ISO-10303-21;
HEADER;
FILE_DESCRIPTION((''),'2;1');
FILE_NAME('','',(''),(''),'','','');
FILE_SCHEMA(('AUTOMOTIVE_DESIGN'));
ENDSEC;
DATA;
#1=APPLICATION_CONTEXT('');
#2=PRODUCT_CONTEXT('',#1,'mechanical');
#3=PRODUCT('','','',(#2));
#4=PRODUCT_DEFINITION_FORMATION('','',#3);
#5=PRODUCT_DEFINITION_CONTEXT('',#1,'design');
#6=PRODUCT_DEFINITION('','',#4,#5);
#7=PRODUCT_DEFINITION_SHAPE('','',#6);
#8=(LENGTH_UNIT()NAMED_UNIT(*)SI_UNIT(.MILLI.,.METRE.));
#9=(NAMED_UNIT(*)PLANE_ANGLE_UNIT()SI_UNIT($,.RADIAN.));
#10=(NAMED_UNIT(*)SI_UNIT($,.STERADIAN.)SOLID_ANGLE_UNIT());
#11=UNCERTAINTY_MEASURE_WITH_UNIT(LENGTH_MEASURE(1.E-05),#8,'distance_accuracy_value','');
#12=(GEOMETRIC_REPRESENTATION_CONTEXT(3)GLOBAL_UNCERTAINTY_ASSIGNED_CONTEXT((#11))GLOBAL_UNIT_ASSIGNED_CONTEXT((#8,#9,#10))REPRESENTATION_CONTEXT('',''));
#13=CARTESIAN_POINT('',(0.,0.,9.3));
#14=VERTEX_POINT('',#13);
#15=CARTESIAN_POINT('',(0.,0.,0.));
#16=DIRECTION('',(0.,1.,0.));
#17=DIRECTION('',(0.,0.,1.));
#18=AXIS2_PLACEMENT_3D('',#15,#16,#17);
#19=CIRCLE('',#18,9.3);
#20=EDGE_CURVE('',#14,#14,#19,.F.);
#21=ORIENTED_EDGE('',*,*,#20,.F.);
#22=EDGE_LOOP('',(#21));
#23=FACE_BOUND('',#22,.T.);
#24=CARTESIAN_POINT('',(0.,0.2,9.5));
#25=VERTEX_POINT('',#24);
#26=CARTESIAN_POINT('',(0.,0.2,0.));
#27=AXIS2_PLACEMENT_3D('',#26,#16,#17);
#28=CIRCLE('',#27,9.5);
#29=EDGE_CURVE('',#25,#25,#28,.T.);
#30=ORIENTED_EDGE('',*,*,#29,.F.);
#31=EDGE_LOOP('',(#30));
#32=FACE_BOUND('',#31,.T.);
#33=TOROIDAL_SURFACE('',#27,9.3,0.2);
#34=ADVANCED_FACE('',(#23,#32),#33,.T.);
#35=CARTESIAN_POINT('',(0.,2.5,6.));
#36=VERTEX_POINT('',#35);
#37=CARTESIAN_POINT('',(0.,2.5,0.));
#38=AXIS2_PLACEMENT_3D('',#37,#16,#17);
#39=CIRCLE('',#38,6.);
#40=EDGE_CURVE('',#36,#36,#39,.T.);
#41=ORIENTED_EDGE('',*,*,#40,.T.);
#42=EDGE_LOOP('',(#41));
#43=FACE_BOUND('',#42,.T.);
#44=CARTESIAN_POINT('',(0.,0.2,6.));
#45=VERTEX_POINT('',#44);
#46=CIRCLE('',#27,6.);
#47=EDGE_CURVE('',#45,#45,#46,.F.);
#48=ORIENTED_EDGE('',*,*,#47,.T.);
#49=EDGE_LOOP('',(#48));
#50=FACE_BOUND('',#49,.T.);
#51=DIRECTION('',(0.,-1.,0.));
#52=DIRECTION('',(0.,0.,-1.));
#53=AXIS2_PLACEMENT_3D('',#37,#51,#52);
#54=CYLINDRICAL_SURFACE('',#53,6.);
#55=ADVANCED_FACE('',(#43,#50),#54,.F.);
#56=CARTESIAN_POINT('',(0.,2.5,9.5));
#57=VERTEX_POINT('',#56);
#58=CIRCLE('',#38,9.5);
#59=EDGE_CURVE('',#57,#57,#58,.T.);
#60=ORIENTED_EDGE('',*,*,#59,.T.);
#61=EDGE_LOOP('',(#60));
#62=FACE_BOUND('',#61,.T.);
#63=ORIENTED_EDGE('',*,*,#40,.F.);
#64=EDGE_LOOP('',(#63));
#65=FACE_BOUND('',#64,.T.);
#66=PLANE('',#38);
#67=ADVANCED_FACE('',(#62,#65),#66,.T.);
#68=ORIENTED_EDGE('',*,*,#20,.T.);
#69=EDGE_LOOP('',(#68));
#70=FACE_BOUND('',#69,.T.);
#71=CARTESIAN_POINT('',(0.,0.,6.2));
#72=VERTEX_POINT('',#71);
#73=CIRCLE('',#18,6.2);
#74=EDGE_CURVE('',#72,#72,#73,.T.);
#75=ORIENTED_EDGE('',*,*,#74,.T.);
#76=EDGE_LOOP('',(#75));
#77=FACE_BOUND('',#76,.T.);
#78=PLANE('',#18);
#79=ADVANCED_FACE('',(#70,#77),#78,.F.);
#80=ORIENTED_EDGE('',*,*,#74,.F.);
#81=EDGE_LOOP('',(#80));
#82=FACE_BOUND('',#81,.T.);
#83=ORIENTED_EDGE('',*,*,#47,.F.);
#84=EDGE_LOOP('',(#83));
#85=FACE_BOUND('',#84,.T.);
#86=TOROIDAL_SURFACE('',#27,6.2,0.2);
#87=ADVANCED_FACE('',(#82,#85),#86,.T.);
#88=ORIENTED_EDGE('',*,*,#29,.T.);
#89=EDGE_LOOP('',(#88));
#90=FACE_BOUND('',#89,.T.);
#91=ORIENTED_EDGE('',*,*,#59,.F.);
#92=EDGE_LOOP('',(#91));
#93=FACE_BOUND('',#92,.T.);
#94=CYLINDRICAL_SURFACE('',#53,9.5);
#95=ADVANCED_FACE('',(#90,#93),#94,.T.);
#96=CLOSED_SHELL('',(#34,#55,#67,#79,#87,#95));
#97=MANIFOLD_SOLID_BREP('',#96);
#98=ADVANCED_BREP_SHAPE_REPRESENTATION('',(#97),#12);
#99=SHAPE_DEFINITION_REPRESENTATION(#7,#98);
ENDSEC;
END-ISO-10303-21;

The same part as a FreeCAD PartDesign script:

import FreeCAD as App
import Part
import Sketcher
from FreeCAD import Vector


def edges_at(feature, points):
    """Names of the edges that pass closest to the given points."""
    edges = feature.Shape.Edges
    near = lambda p: min(range(len(edges)), key=lambda i: edges[i].distToShape(Part.Vertex(*p))[0])
    return sorted({f"Edge{near(p) + 1}" for p in points})

doc = App.newDocument("Part")
body = doc.addObject("PartDesign::Body", "Body")

# Sketch on XZ plane
sketch1 = doc.addObject("Sketcher::SketchObject", "Sketch")
body.addObject(sketch1)
sketch1.AttachmentSupport = (doc.XZ_Plane, [""])
sketch1.MapMode = "FlatFace"
sketch1.addGeometry([
    Part.Circle(Vector(0, 0, 0), Vector(0, 0, 1), 10),
    Part.Circle(Vector(0, 0, 0), Vector(0, 0, 1), 6),
], False)
sketch1.addConstraint([
    Sketcher.Constraint("Coincident", 0, 3, -1, 1),
    Sketcher.Constraint("Coincident", 1, 3, -1, 1),
    Sketcher.Constraint("Diameter", 0, 19.0),
    Sketcher.Constraint("Diameter", 1, 12.0),
])
pad1 = doc.addObject("PartDesign::Pad", "Pad")
body.addObject(pad1)
pad1.Profile = sketch1
pad1.Length = 2.5
pad1.Reversed = True
doc.recompute()

fillet = doc.addObject("PartDesign::Fillet", "Fillet")
body.addObject(fillet)
fillet.Base = (pad1, edges_at(pad1, [(-9.5, 0, 0), (-6, 0, 0)]))
fillet.Radius = 0.2

doc.recompute()
